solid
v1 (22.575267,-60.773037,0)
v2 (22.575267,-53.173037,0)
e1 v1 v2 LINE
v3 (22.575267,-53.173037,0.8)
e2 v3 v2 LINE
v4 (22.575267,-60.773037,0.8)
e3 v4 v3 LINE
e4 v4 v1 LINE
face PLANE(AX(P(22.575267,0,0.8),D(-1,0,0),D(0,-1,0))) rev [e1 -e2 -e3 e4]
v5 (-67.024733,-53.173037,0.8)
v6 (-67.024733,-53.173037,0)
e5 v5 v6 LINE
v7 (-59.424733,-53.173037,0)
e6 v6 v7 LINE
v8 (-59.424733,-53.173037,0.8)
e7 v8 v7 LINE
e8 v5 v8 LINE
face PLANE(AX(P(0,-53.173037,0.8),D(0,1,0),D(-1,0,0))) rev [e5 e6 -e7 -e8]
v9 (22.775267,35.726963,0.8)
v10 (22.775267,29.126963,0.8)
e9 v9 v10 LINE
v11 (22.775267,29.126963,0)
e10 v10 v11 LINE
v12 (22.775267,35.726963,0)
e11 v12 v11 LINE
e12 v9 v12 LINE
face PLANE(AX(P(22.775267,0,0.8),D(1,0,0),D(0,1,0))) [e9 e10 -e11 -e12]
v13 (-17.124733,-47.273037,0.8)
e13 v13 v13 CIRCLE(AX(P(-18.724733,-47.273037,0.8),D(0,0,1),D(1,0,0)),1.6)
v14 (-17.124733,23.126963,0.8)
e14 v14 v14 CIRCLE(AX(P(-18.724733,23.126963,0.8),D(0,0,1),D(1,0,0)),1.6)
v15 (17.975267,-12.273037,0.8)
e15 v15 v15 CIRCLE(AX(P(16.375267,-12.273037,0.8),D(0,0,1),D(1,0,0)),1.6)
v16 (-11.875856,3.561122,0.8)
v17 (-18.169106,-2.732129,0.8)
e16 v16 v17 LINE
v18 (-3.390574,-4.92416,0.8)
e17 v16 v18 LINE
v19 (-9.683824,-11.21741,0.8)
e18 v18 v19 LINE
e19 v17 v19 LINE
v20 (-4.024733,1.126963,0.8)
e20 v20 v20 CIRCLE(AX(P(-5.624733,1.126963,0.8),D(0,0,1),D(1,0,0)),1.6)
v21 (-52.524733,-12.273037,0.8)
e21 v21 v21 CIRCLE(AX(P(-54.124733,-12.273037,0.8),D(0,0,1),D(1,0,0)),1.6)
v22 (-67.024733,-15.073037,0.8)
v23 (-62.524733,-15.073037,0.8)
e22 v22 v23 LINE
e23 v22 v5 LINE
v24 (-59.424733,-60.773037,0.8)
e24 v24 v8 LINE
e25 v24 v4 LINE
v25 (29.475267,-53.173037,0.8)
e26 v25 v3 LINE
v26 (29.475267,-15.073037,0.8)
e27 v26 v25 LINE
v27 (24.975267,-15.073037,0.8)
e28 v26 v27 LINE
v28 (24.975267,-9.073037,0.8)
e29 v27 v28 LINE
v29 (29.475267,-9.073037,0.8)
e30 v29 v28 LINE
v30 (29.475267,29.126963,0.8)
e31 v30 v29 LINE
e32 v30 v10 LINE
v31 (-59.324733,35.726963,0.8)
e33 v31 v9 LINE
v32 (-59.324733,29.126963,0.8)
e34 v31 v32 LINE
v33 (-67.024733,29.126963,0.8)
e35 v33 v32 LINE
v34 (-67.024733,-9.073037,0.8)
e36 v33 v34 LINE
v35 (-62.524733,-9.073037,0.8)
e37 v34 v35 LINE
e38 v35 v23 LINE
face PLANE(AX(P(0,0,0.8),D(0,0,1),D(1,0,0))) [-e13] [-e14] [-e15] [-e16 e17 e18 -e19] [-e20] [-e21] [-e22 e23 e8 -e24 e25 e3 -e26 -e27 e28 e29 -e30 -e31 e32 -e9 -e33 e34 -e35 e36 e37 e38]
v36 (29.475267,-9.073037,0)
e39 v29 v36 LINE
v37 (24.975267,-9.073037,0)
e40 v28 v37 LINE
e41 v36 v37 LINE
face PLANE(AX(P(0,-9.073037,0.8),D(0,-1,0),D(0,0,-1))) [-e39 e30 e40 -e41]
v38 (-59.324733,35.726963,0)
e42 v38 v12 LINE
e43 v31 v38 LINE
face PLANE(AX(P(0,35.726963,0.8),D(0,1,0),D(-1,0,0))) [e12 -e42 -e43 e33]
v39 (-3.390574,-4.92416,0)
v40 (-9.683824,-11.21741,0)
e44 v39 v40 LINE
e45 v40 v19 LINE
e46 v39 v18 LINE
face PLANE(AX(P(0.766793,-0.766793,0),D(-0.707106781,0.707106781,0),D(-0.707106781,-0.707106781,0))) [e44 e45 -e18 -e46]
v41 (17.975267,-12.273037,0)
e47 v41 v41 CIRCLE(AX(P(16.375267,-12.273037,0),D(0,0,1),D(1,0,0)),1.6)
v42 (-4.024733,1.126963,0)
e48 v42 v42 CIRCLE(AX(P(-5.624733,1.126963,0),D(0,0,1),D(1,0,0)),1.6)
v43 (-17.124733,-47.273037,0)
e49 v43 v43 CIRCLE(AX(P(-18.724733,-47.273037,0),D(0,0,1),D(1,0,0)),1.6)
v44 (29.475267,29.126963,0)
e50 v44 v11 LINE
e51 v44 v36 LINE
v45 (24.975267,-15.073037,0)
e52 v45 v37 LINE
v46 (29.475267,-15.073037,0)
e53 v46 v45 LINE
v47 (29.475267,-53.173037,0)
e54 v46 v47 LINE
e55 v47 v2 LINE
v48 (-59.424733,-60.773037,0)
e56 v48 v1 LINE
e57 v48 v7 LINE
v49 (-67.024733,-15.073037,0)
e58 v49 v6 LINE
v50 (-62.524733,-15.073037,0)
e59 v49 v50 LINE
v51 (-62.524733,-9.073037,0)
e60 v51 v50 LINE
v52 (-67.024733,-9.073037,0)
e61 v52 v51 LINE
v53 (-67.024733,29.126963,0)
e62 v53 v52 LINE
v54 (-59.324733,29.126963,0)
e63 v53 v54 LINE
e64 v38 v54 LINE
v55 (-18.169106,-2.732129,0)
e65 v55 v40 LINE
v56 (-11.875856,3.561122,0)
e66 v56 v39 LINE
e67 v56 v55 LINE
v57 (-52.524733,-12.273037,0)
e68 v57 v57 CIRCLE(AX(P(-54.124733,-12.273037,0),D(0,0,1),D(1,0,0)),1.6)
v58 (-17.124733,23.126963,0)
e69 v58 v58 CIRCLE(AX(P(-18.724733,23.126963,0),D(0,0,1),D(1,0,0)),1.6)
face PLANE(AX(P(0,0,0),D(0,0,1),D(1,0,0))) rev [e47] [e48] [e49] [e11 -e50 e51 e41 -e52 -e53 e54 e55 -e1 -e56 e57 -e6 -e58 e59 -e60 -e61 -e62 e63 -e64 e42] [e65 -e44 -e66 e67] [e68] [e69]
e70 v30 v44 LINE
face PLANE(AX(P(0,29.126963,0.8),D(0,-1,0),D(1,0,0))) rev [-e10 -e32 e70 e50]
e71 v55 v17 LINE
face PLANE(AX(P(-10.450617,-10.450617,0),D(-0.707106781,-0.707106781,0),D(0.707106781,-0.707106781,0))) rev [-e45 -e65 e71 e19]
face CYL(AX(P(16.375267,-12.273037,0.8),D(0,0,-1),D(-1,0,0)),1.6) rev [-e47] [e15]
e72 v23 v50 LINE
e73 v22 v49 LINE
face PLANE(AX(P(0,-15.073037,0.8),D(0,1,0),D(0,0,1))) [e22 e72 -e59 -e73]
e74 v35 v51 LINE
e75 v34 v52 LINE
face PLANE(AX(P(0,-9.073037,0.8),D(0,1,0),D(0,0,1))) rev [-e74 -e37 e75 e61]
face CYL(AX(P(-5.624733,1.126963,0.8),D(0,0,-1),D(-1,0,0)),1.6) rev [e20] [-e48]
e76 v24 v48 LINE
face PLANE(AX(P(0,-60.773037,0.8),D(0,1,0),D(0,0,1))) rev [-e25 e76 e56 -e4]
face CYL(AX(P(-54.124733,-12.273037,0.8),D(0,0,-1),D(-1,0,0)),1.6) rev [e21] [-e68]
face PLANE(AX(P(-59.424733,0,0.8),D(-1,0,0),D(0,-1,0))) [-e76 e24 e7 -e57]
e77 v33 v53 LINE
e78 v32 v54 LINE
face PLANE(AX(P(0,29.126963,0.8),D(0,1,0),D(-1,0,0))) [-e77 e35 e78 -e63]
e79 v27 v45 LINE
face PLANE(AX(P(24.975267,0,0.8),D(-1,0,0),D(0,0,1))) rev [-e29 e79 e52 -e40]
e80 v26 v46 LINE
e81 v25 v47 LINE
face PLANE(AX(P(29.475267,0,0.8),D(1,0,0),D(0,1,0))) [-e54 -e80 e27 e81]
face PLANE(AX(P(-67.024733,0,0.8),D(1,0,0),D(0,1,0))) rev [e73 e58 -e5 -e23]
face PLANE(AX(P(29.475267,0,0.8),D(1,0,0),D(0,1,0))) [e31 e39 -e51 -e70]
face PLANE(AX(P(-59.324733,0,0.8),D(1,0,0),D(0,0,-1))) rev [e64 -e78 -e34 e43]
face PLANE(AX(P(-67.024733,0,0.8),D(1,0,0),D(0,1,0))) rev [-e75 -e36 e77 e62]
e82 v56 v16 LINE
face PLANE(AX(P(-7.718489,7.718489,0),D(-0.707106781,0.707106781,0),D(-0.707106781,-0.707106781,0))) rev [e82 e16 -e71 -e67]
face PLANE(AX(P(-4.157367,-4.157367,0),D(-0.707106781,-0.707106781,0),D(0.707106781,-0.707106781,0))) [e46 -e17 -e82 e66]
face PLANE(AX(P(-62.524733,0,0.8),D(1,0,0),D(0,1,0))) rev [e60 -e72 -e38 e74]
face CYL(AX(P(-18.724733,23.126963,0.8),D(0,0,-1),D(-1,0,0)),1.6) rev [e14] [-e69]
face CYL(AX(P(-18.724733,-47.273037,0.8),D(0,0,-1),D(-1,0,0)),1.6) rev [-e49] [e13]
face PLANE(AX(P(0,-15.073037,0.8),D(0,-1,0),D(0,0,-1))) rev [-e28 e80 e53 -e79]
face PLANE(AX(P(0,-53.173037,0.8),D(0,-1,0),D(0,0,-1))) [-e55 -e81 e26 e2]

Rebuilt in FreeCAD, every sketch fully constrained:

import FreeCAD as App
import Part
import Sketcher
from FreeCAD import Vector
Q = App.Units.Quantity


def add_polygon(sketch, points):
    """Adds a closed chain of lines whose ends are joined by coincident constraints."""
    first, n = sketch.GeometryCount, len(points)
    for a, b in zip(points, points[1:] + points[:1]):
        sketch.addGeometry(Part.LineSegment(App.Vector(*a, 0), App.Vector(*b, 0)), False)
    for i in range(n):
        sketch.addConstraint(Sketcher.Constraint("Coincident", first + i, 2, first + (i + 1) % n, 1))

doc = App.newDocument("Part")
body = doc.addObject("PartDesign::Body", "Body")

# Sketch on XY plane
sketch1 = body.newObject("Sketcher::SketchObject", "Sketch")
sketch1.AttachmentSupport = (doc.getObject("XY_Plane"), [""])
sketch1.MapMode = "FlatFace"
add_polygon(sketch1, [(22.8, 35.7), (-59.3, 35.7), (-59.3, 29.1), (-67, 29.1), (-67, -9.1), (-62.5, -9.1), (-62.5, -15.1), (-67, -15.1), (-67, -53.2), (-59.4, -53.2), (-59.4, -60.8), (22.6, -60.8), (22.6, -53.2), (29.5, -53.2), (29.5, -15.1), (25, -15.1), (25, -9.1), (29.5, -9.1), (29.5, 29.1), (22.8, 29.1)])  # lines 0-19
sketch1.addGeometry(Part.Circle(Vector(-54.1, -12.3, 0), Vector(0, 0, 1), 1.6), False)  # 20
sketch1.addGeometry(Part.Circle(Vector(-18.7, -47.3, 0), Vector(0, 0, 1), 1.6), False)  # 21
sketch1.addGeometry(Part.Circle(Vector(16.4, -12.3, 0), Vector(0, 0, 1), 1.6), False)  # 22
sketch1.addGeometry(Part.Circle(Vector(-5.6, 1.1, 0), Vector(0, 0, 1), 1.6), False)  # 23
sketch1.addGeometry(Part.Circle(Vector(-18.7, 23.1, 0), Vector(0, 0, 1), 1.6), False)  # 24
sketch1.addConstraint(Sketcher.Constraint("Horizontal", 0))
sketch1.addConstraint(Sketcher.Constraint("Vertical", 1))
sketch1.addConstraint(Sketcher.Constraint("Horizontal", 2))
sketch1.addConstraint(Sketcher.Constraint("Vertical", 3))
sketch1.addConstraint(Sketcher.Constraint("Horizontal", 4))
sketch1.addConstraint(Sketcher.Constraint("Vertical", 5))
sketch1.addConstraint(Sketcher.Constraint("Horizontal", 6))
sketch1.addConstraint(Sketcher.Constraint("Vertical", 7))
sketch1.addConstraint(Sketcher.Constraint("Horizontal", 8))
sketch1.addConstraint(Sketcher.Constraint("Vertical", 9))
sketch1.addConstraint(Sketcher.Constraint("Horizontal", 10))
sketch1.addConstraint(Sketcher.Constraint("Vertical", 11))
sketch1.addConstraint(Sketcher.Constraint("Horizontal", 12))
sketch1.addConstraint(Sketcher.Constraint("Vertical", 13))
sketch1.addConstraint(Sketcher.Constraint("Horizontal", 14))
sketch1.addConstraint(Sketcher.Constraint("Vertical", 15))
sketch1.addConstraint(Sketcher.Constraint("Horizontal", 16))
sketch1.addConstraint(Sketcher.Constraint("Vertical", 17))
sketch1.addConstraint(Sketcher.Constraint("Horizontal", 18))
sketch1.addConstraint(Sketcher.Constraint("Vertical", 19))
sketch1.addConstraint(Sketcher.Constraint("Equal", 20, 21))
sketch1.addConstraint(Sketcher.Constraint("Equal", 21, 22))
sketch1.addConstraint(Sketcher.Constraint("Equal", 22, 23))
sketch1.addConstraint(Sketcher.Constraint("Equal", 23, 24))
sketch1.addConstraint(Sketcher.Constraint("Horizontal", 20, 3, 22, 3))
sketch1.addConstraint(Sketcher.Constraint("Horizontal", 8, 2, 11, 2))
sketch1.addConstraint(Sketcher.Constraint("Horizontal", 6, 2, 13, 2))
sketch1.addConstraint(Sketcher.Constraint("Horizontal", 4, 2, 15, 2))
sketch1.addConstraint(Sketcher.Constraint("Horizontal", 2, 2, 17, 2))
sketch1.addConstraint(Sketcher.Constraint("Vertical", 21, 3, 24, 3))
sketch1.addConstraint(Sketcher.Constraint("Vertical", 3, 2, 6, 2))
sketch1.addConstraint(Sketcher.Constraint("Vertical", 13, 2, 16, 2))
sketch1.addConstraint(Sketcher.Constraint("Equal", 6, 14))
sketch1.addConstraint(Sketcher.Constraint("Equal", 8, 9))
sketch1.addConstraint(Sketcher.Constraint("Diameter", 20, 3.2))
sketch1.addConstraint(Sketcher.Constraint("DistanceX", 10, 1, 10, 2, 82.0))
sketch1.addConstraint(Sketcher.Constraint("DistanceY", 5, 2, 5, 1, 6.0))
sketch1.addConstraint(Sketcher.Constraint("DistanceX", 0, 2, 0, 1, 82.1))
sketch1.addConstraint(Sketcher.Constraint("DistanceX", 2, 2, 2, 1, 7.7))
sketch1.addConstraint(Sketcher.Constraint("DistanceX", 4, 1, 4, 2, 4.5))
sketch1.addConstraint(Sketcher.Constraint("DistanceX", 8, 1, 8, 2, 7.6))
sketch1.addConstraint(Sketcher.Constraint("DistanceX", 12, 1, 12, 2, 6.9))
sketch1.addConstraint(Sketcher.Constraint("DistanceY", 1, 2, 1, 1, 6.6))
sketch1.addConstraint(Sketcher.Constraint("DistanceY", 3, 2, 3, 1, 38.2))
sketch1.addConstraint(Sketcher.Constraint("DistanceY", 7, 2, 7, 1, 38.1))
sketch1.addConstraint(Sketcher.Constraint("DistanceY", 21, 3, 20, 3, 35.0))
sketch1.addConstraint(Sketcher.Constraint("DistanceX", 23, 3, 22, 3, 22.0))
sketch1.addConstraint(Sketcher.Constraint("DistanceY", 23, 3, 24, 3, 22.0))
sketch1.addConstraint(Sketcher.Constraint("DistanceY", 20, 3, 0, 2, 48.0))
sketch1.addConstraint(Sketcher.Constraint("DistanceY", 24, 3, 1, 2, 6.0))
sketch1.addConstraint(Sketcher.Constraint("DistanceX", 20, 3, 21, 3, 35.4))
sketch1.addConstraint(Sketcher.Constraint("DistanceX", 21, 3, 22, 3, 35.1))
sketch1.addConstraint(Sketcher.Constraint("DistanceX", 0, 2, 24, 3, 40.6))
sketch1.addConstraint(Sketcher.Constraint("DistanceX", 20, 3, -1, 1, 54.124733))
sketch1.addConstraint(Sketcher.Constraint("DistanceY", 20, 3, -1, 1, 12.273037))
pad1 = body.newObject("PartDesign::Pad", "Pad")
pad1.Profile = sketch1
pad1.Length = 0.8

# Sketch on XY plane
sketch2 = body.newObject("Sketcher::SketchObject", "Sketch001")
sketch2.AttachmentSupport = (doc.getObject("XY_Plane"), [""])
sketch2.MapMode = "FlatFace"
sketch2.AttachmentOffset = App.Placement(Vector(0, 0, 0.8), App.Rotation())
add_polygon(sketch2, [(-18, -3), (-10, -11), (-3, -5), (-12, 4)])  # lines 0-3
sketch2.addConstraint(Sketcher.Constraint("Perpendicular", 0, 1))
sketch2.addConstraint(Sketcher.Constraint("Perpendicular", 1, 2))
sketch2.addConstraint(Sketcher.Constraint("Perpendicular", 2, 3))
sketch2.addConstraint(Sketcher.Constraint("Angle", 0, Q("-45 deg")))
sketch2.addConstraint(Sketcher.Constraint("Distance", 0, 12.0))
sketch2.addConstraint(Sketcher.Constraint("Distance", 1, 8.9))
sketch2.addConstraint(Sketcher.Constraint("DistanceY", 0, 2, -1, 1, 11.21741))
sketch2.addConstraint(Sketcher.Constraint("DistanceX", 0, 2, -1, 1, 9.683824))
pocket1 = body.newObject("PartDesign::Pocket", "Pocket")
pocket1.Profile = sketch2
pocket1.Length = 0.8

doc.recompute()
